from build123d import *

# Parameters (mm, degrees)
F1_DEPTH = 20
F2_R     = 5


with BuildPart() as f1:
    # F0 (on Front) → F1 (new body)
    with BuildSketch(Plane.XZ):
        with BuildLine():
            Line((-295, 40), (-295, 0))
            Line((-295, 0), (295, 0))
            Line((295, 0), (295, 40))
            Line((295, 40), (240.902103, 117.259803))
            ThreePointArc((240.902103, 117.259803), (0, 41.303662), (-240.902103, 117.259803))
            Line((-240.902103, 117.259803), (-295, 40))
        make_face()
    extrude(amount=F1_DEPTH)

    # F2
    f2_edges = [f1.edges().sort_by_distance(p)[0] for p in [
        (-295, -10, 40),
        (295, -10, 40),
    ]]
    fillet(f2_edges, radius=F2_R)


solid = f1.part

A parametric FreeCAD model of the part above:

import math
import FreeCAD as App
import Part
import Sketcher

V = App.Vector
Q = App.Units.Quantity


def edges_at(feature, points):
    """Names of the edges that pass closest to the given points."""
    edges = feature.Shape.Edges
    near = lambda p: min(range(len(edges)), key=lambda i: edges[i].distToShape(Part.Vertex(*p))[0])
    return sorted({f"Edge{near(p) + 1}" for p in points})

doc = App.newDocument("Part")
body = doc.addObject("PartDesign::Body", "Body")

sketch1 = body.newObject("Sketcher::SketchObject", "Sketch")
sketch1.AttachmentSupport = (doc.getObject("XZ_Plane"), [""])
sketch1.MapMode = "FlatFace"
sketch1.addGeometry(Part.LineSegment(V(-295, 40, 0), V(-295, 0, 0)), False)
sketch1.addGeometry(Part.LineSegment(V(-295, 0, 0), V(295, 0, 0)), False)
sketch1.addGeometry(Part.LineSegment(V(295, 0, 0), V(295, 40, 0)), False)
sketch1.addGeometry(Part.LineSegment(V(295, 40, 0), V(241, 117, 0)), False)
sketch1.addGeometry(Part.ArcOfCircle(Part.Circle(V(0, 461, 0), V(0, 0, 1), 420), math.radians(-125), math.radians(-55)), False)
sketch1.addGeometry(Part.LineSegment(V(-241, 117, 0), V(-295, 40, 0)), False)
sketch1.addConstraint(Sketcher.Constraint("Coincident", 0, 2, 1, 1))
sketch1.addConstraint(Sketcher.Constraint("Coincident", 1, 2, 2, 1))
sketch1.addConstraint(Sketcher.Constraint("Coincident", 2, 2, 3, 1))
sketch1.addConstraint(Sketcher.Constraint("Coincident", 3, 2, 4, 2))
sketch1.addConstraint(Sketcher.Constraint("Coincident", 4, 1, 5, 1))
sketch1.addConstraint(Sketcher.Constraint("Coincident", 5, 2, 0, 1))
sketch1.addConstraint(Sketcher.Constraint("Vertical", 0))
sketch1.addConstraint(Sketcher.Constraint("Horizontal", 1))
sketch1.addConstraint(Sketcher.Constraint("Vertical", 2))
sketch1.addConstraint(Sketcher.Constraint("Symmetric", 0, 2, 1, 2, -1, 1))
sketch1.addConstraint(Sketcher.Constraint("Symmetric", 3, 2, 4, 1, -2))
sketch1.addConstraint(Sketcher.Constraint("Horizontal", 2, 2, 5, 2))
sketch1.addConstraint(Sketcher.Constraint("Radius", 4, Q("420.000001 mm")))
sketch1.addConstraint(Sketcher.Constraint("DistanceX", 1, 1, 1, 2, Q("590 mm")))
sketch1.addConstraint(Sketcher.Constraint("DistanceY", 0, 2, 0, 1, Q("40 mm")))
sketch1.addConstraint(Sketcher.Constraint("Angle", 3, Q("125 deg")))
sketch1.addConstraint(Sketcher.Constraint("DistanceY", 3, 2, 4, 3, Q("344.04386 mm")))
pad1 = body.newObject("PartDesign::Pad", "Pad")
pad1.Profile = sketch1
pad1.Length = 20
doc.recompute()

fillet = body.newObject("PartDesign::Fillet", "Fillet")
fillet.Base = (pad1, edges_at(pad1, [(-295, -10, 40), (295, -10, 40)]))
fillet.Radius = 5

doc.recompute()
